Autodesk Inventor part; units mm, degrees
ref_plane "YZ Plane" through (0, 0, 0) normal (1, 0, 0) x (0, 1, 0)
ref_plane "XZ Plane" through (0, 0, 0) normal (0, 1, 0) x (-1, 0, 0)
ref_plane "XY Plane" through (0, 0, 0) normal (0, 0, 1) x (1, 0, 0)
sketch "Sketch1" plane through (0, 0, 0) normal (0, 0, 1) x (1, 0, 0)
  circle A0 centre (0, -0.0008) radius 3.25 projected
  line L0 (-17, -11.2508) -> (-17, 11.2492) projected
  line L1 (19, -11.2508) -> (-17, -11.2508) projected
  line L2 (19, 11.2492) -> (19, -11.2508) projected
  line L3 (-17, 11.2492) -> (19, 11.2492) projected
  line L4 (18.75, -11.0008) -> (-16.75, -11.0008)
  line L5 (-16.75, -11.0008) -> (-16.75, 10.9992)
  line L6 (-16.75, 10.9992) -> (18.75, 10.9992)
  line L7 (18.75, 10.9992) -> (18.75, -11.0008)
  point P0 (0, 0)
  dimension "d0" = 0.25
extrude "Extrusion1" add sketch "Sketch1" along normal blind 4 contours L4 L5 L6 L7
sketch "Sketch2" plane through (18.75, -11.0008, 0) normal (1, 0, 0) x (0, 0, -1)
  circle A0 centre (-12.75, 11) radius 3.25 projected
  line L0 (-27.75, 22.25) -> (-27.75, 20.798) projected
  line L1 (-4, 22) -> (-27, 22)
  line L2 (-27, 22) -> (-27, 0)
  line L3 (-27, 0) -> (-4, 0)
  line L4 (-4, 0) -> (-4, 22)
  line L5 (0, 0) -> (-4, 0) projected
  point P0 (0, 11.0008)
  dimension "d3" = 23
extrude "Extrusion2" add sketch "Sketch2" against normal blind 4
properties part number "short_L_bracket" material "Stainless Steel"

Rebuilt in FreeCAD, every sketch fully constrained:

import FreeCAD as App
import Part
import Sketcher
Q = App.Units.Quantity


def add_polygon(sketch, points):
    """Adds a closed chain of lines whose ends are joined by coincident constraints."""
    first, n = sketch.GeometryCount, len(points)
    for a, b in zip(points, points[1:] + points[:1]):
        sketch.addGeometry(Part.LineSegment(App.Vector(*a, 0), App.Vector(*b, 0)), False)
    for i in range(n):
        sketch.addConstraint(Sketcher.Constraint("Coincident", first + i, 2, first + (i + 1) % n, 1))

doc = App.newDocument("Part")
body = doc.addObject("PartDesign::Body", "Body")

# Sketch on XY plane
sketch1 = body.newObject("Sketcher::SketchObject", "Sketch")
sketch1.AttachmentSupport = (doc.getObject("XY_Plane"), [""])
sketch1.MapMode = "FlatFace"
add_polygon(sketch1, [(-16.8, -11), (18.8, -11), (18.8, 11), (-16.8, 11)])  # lines 0-3
sketch1.addGeometry(Part.Circle(App.Vector(0, 0, 0), App.Vector(0, 0, 1), 3.2), False)  # 4
sketch1.addConstraint(Sketcher.Constraint("Horizontal", 0))
sketch1.addConstraint(Sketcher.Constraint("Vertical", 1))
sketch1.addConstraint(Sketcher.Constraint("Horizontal", 2))
sketch1.addConstraint(Sketcher.Constraint("Vertical", 3))
sketch1.addConstraint(Sketcher.Constraint("PointOnObject", 4, 3, -2))
sketch1.addConstraint(Sketcher.Constraint("Diameter", 4, Q("6.5 mm")))
sketch1.addConstraint(Sketcher.Constraint("DistanceY", 1, 1, 1, 2, Q("22 mm")))
sketch1.addConstraint(Sketcher.Constraint("DistanceX", 0, 1, 0, 2, Q("35.5 mm")))
sketch1.addConstraint(Sketcher.Constraint("DistanceY", 0, 2, 4, 3, Q("11 mm")))
sketch1.addConstraint(Sketcher.Constraint("DistanceX", -1, 1, 0, 2, Q("18.75 mm")))
sketch1.addConstraint(Sketcher.Constraint("DistanceY", 4, 3, -1, 1, Q("0.0008 mm")))
pad1 = body.newObject("PartDesign::Pad", "Pad")
pad1.Profile = sketch1
pad1.Length = 4

# Sketch on YZ plane
sketch2 = body.newObject("Sketcher::SketchObject", "Sketch001")
sketch2.AttachmentSupport = (doc.getObject("YZ_Plane"), [""])
sketch2.MapMode = "FlatFace"
sketch2.AttachmentOffset = App.Placement(App.Vector(0, 0, 18.75), App.Rotation())
add_polygon(sketch2, [(-11, 4), (11, 4), (11, 27), (-11, 27)])  # lines 0-3
sketch2.addGeometry(Part.Circle(App.Vector(0, 12.8, 0), App.Vector(0, 0, 1), 3.2), False)  # 4
sketch2.addConstraint(Sketcher.Constraint("Horizontal", 0))
sketch2.addConstraint(Sketcher.Constraint("Vertical", 1))
sketch2.addConstraint(Sketcher.Constraint("Horizontal", 2))
sketch2.addConstraint(Sketcher.Constraint("Vertical", 3))
sketch2.addConstraint(Sketcher.Constraint("DistanceY", 1, 1, 1, 2, Q("23 mm")))
sketch2.addConstraint(Sketcher.Constraint("Diameter", 4, Q("6.5 mm")))
sketch2.addConstraint(Sketcher.Constraint("DistanceX", 0, 1, 0, 2, Q("22 mm")))
sketch2.addConstraint(Sketcher.Constraint("DistanceY", -1, 1, 0, 2, Q("4 mm")))
sketch2.addConstraint(Sketcher.Constraint("DistanceX", 4, 3, 0, 2, Q("11 mm")))
sketch2.addConstraint(Sketcher.Constraint("DistanceY", -1, 1, 4, 3, Q("12.75 mm")))
sketch2.addConstraint(Sketcher.Constraint("DistanceX", 4, 3, -1, 1, Q("0.0008 mm")))
pad2 = body.newObject("PartDesign::Pad", "Pad001")
pad2.Profile = sketch2
pad2.Length = 4
pad2.Reversed = True

doc.recompute()
